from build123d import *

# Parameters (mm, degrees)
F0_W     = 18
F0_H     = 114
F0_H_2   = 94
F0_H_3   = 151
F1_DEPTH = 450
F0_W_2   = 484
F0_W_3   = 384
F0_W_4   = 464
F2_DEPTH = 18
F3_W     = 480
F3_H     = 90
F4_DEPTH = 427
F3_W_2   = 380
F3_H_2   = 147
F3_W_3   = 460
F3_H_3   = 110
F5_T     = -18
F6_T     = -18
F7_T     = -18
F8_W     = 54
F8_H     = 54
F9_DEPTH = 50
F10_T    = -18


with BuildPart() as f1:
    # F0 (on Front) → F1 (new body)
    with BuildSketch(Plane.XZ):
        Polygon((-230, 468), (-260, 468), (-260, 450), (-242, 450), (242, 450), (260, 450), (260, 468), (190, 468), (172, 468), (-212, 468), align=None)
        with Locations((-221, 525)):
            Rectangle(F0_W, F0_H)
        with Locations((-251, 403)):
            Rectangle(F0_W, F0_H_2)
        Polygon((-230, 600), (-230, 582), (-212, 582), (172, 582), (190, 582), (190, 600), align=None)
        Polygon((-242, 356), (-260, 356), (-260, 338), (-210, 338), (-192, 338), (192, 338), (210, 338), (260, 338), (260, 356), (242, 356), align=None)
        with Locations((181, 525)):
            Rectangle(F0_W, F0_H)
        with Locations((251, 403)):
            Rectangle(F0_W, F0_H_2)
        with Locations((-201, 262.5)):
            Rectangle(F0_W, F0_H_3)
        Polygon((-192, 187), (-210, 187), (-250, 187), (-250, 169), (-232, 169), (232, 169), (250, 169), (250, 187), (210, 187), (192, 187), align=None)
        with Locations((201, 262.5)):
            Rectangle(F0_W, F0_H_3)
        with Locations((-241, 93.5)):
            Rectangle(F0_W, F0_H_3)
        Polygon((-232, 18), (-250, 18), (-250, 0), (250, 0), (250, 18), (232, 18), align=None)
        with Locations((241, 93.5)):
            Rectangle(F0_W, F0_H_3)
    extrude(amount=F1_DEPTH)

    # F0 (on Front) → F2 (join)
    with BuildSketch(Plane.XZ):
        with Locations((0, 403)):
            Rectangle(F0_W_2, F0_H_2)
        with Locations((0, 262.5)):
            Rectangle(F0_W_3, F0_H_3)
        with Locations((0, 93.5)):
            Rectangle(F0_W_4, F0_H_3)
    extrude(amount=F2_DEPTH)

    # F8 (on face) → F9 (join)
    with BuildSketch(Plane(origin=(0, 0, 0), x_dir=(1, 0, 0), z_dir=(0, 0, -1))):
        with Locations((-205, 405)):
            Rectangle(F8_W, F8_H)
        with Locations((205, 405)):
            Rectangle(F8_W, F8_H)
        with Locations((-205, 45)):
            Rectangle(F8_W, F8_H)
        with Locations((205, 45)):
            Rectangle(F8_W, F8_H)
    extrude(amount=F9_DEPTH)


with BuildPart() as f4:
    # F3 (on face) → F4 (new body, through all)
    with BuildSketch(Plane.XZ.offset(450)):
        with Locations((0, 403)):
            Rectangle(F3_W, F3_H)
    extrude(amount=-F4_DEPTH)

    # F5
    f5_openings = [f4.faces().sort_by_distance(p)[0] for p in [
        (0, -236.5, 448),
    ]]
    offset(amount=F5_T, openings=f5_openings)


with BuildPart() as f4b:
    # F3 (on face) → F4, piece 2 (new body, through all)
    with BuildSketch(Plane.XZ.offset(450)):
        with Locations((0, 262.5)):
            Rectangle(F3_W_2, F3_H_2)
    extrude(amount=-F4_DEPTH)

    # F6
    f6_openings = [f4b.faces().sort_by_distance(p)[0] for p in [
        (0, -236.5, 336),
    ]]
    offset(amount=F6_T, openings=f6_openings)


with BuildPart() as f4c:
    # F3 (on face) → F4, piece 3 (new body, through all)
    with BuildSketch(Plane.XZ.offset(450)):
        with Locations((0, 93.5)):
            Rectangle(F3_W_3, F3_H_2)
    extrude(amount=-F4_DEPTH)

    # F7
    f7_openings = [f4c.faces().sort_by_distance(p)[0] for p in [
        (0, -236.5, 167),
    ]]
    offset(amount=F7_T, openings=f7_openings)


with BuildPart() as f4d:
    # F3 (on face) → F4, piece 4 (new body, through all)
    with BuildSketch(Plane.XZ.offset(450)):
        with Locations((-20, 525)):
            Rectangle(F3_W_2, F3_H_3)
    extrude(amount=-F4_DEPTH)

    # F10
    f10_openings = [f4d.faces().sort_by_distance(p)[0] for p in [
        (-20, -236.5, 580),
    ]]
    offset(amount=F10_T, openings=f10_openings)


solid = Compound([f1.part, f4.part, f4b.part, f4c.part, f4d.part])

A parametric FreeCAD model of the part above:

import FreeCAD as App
import Part
import Sketcher
Q = App.Units.Quantity


def faces_at(feature, points):
    """Names of the faces that lie closest to the given points."""
    faces = feature.Shape.Faces
    near = lambda p: min(range(len(faces)), key=lambda i: faces[i].distToShape(Part.Vertex(*p))[0])
    return sorted({f"Face{near(p) + 1}" for p in points})


def add_polygon(sketch, points):
    """Adds a closed chain of lines whose ends are joined by coincident constraints."""
    first, n = sketch.GeometryCount, len(points)
    for a, b in zip(points, points[1:] + points[:1]):
        sketch.addGeometry(Part.LineSegment(App.Vector(*a, 0), App.Vector(*b, 0)), False)
    for i in range(n):
        sketch.addConstraint(Sketcher.Constraint("Coincident", first + i, 2, first + (i + 1) % n, 1))

doc = App.newDocument("Part")
body = doc.addObject("PartDesign::Body", "Body")

# Sketch on XZ plane
sketch1 = body.newObject("Sketcher::SketchObject", "Sketch")
sketch1.AttachmentSupport = (doc.getObject("XZ_Plane"), [""])
sketch1.MapMode = "FlatFace"
add_polygon(sketch1, [(-260, 468), (-260, 338), (-210, 338), (-210, 187), (-250, 187), (-250, 0), (250, 0), (250, 187), (210, 187), (210, 338), (260, 338), (260, 468), (190, 468), (190, 600), (-230, 600), (-230, 468)])  # lines 0-15
add_polygon(sketch1, [(232, 18), (-232, 18), (-232, 169), (232, 169)])  # lines 16-19
add_polygon(sketch1, [(192, 187), (-192, 187), (-192, 338), (192, 338)])  # lines 20-23
add_polygon(sketch1, [(242, 356), (-242, 356), (-242, 450), (242, 450)])  # lines 24-27
add_polygon(sketch1, [(172, 468), (-212, 468), (-212, 582), (172, 582)])  # lines 28-31
sketch1.addConstraint(Sketcher.Constraint("Vertical", 0))
sketch1.addConstraint(Sketcher.Constraint("Horizontal", 1))
sketch1.addConstraint(Sketcher.Constraint("Vertical", 2))
sketch1.addConstraint(Sketcher.Constraint("Horizontal", 3))
sketch1.addConstraint(Sketcher.Constraint("Vertical", 4))
sketch1.addConstraint(Sketcher.Constraint("Horizontal", 5))
sketch1.addConstraint(Sketcher.Constraint("Vertical", 6))
sketch1.addConstraint(Sketcher.Constraint("Horizontal", 7))
sketch1.addConstraint(Sketcher.Constraint("Vertical", 8))
sketch1.addConstraint(Sketcher.Constraint("Horizontal", 9))
sketch1.addConstraint(Sketcher.Constraint("Vertical", 10))
sketch1.addConstraint(Sketcher.Constraint("Horizontal", 11))
sketch1.addConstraint(Sketcher.Constraint("Vertical", 12))
sketch1.addConstraint(Sketcher.Constraint("Horizontal", 13))
sketch1.addConstraint(Sketcher.Constraint("Vertical", 14))
sketch1.addConstraint(Sketcher.Constraint("Horizontal", 15))
sketch1.addConstraint(Sketcher.Constraint("Horizontal", 16))
sketch1.addConstraint(Sketcher.Constraint("Vertical", 17))
sketch1.addConstraint(Sketcher.Constraint("Horizontal", 18))
sketch1.addConstraint(Sketcher.Constraint("Vertical", 19))
sketch1.addConstraint(Sketcher.Constraint("Horizontal", 20))
sketch1.addConstraint(Sketcher.Constraint("Vertical", 21))
sketch1.addConstraint(Sketcher.Constraint("Horizontal", 22))
sketch1.addConstraint(Sketcher.Constraint("Vertical", 23))
sketch1.addConstraint(Sketcher.Constraint("Horizontal", 24))
sketch1.addConstraint(Sketcher.Constraint("Vertical", 25))
sketch1.addConstraint(Sketcher.Constraint("Horizontal", 26))
sketch1.addConstraint(Sketcher.Constraint("Vertical", 27))
sketch1.addConstraint(Sketcher.Constraint("Horizontal", 28))
sketch1.addConstraint(Sketcher.Constraint("Vertical", 29))
sketch1.addConstraint(Sketcher.Constraint("Horizontal", 30))
sketch1.addConstraint(Sketcher.Constraint("Vertical", 31))
sketch1.addConstraint(Sketcher.Constraint("Symmetric", 4, 2, 5, 2, -1, 1))
sketch1.addConstraint(Sketcher.Constraint("Symmetric", 2, 2, 7, 2, -2))
sketch1.addConstraint(Sketcher.Constraint("Symmetric", 0, 2, 9, 2, -2))
sketch1.addConstraint(Sketcher.Constraint("Horizontal", 11, 2, 14, 2))
sketch1.addConstraint(Sketcher.Constraint("Horizontal", 7, 2, 20, 2))
sketch1.addConstraint(Sketcher.Constraint("Horizontal", 9, 2, 21, 2))
sketch1.addConstraint(Sketcher.Constraint("Horizontal", 15, 2, 28, 2))
sketch1.addConstraint(Sketcher.Constraint("Equal", 22, 28))
sketch1.addConstraint(Sketcher.Constraint("Equal", 8, 17))
sketch1.addConstraint(Sketcher.Constraint("DistanceX", 1, 1, 1, 2, Q("50 mm")))
sketch1.addConstraint(Sketcher.Constraint("DistanceX", 3, 2, 3, 1, Q("40 mm")))
sketch1.addConstraint(Sketcher.Constraint("DistanceX", 5, 1, 5, 2, Q("500 mm")))
sketch1.addConstraint(Sketcher.Constraint("DistanceX", 11, 2, 11, 1, Q("70 mm")))
sketch1.addConstraint(Sketcher.Constraint("DistanceX", 13, 2, 13, 1, Q("420 mm")))
sketch1.addConstraint(Sketcher.Constraint("DistanceX", 16, 2, 16, 1, Q("464 mm")))
sketch1.addConstraint(Sketcher.Constraint("DistanceX", 20, 2, 20, 1, Q("384 mm")))
sketch1.addConstraint(Sketcher.Constraint("DistanceX", 24, 2, 24, 1, Q("484 mm")))
sketch1.addConstraint(Sketcher.Constraint("DistanceY", 0, 2, 0, 1, Q("130 mm")))
sketch1.addConstraint(Sketcher.Constraint("DistanceY", 2, 2, 2, 1, Q("151 mm")))
sketch1.addConstraint(Sketcher.Constraint("DistanceY", 4, 2, 4, 1, Q("187 mm")))
sketch1.addConstraint(Sketcher.Constraint("DistanceY", 12, 1, 12, 2, Q("132 mm")))
sketch1.addConstraint(Sketcher.Constraint("DistanceY", 25, 1, 25, 2, Q("94 mm")))
sketch1.addConstraint(Sketcher.Constraint("DistanceY", 29, 1, 29, 2, Q("114 mm")))
sketch1.addConstraint(Sketcher.Constraint("DistanceX", 16, 2, -1, 1, Q("232 mm")))
sketch1.addConstraint(Sketcher.Constraint("DistanceY", -1, 1, 16, 2, Q("18 mm")))
sketch1.addConstraint(Sketcher.Constraint("DistanceX", 20, 2, -1, 1, Q("192 mm")))
sketch1.addConstraint(Sketcher.Constraint("DistanceX", 24, 2, -1, 1, Q("242 mm")))
sketch1.addConstraint(Sketcher.Constraint("DistanceY", -1, 1, 24, 2, Q("356 mm")))
sketch1.addConstraint(Sketcher.Constraint("DistanceX", 28, 2, -1, 1, Q("212 mm")))
pad1 = body.newObject("PartDesign::Pad", "Pad")
pad1.Profile = sketch1
pad1.Length = 450

# Sketch on XZ plane
sketch2 = body.newObject("Sketcher::SketchObject", "Sketch001")
sketch2.AttachmentSupport = (doc.getObject("XZ_Plane"), [""])
sketch2.MapMode = "FlatFace"
add_polygon(sketch2, [(-242, 450), (-242, 356), (242, 356), (242, 450)])  # lines 0-3
add_polygon(sketch2, [(-192, 338), (-192, 187), (192, 187), (192, 338)])  # lines 4-7
add_polygon(sketch2, [(-232, 169), (-232, 18), (232, 18), (232, 169)])  # lines 8-11
sketch2.addConstraint(Sketcher.Constraint("Vertical", 0))
sketch2.addConstraint(Sketcher.Constraint("Horizontal", 1))
sketch2.addConstraint(Sketcher.Constraint("Vertical", 2))
sketch2.addConstraint(Sketcher.Constraint("Horizontal", 3))
sketch2.addConstraint(Sketcher.Constraint("Vertical", 4))
sketch2.addConstraint(Sketcher.Constraint("Horizontal", 5))
sketch2.addConstraint(Sketcher.Constraint("Vertical", 6))
sketch2.addConstraint(Sketcher.Constraint("Horizontal", 7))
sketch2.addConstraint(Sketcher.Constraint("Vertical", 8))
sketch2.addConstraint(Sketcher.Constraint("Horizontal", 9))
sketch2.addConstraint(Sketcher.Constraint("Vertical", 10))
sketch2.addConstraint(Sketcher.Constraint("Horizontal", 11))
sketch2.addConstraint(Sketcher.Constraint("Equal", 6, 8))
sketch2.addConstraint(Sketcher.Constraint("DistanceX", 1, 1, 1, 2, Q("484 mm")))
sketch2.addConstraint(Sketcher.Constraint("DistanceX", 5, 1, 5, 2, Q("384 mm")))
sketch2.addConstraint(Sketcher.Constraint("DistanceX", 9, 1, 9, 2, Q("464 mm")))
sketch2.addConstraint(Sketcher.Constraint("DistanceY", 0, 2, 0, 1, Q("94 mm")))
sketch2.addConstraint(Sketcher.Constraint("DistanceY", 4, 2, 4, 1, Q("151 mm")))
sketch2.addConstraint(Sketcher.Constraint("DistanceX", 0, 2, -1, 1, Q("242 mm")))
sketch2.addConstraint(Sketcher.Constraint("DistanceY", -1, 1, 0, 2, Q("356 mm")))
sketch2.addConstraint(Sketcher.Constraint("DistanceX", 4, 2, -1, 1, Q("192 mm")))
sketch2.addConstraint(Sketcher.Constraint("DistanceY", -1, 1, 4, 2, Q("187 mm")))
sketch2.addConstraint(Sketcher.Constraint("DistanceX", 8, 2, -1, 1, Q("232 mm")))
sketch2.addConstraint(Sketcher.Constraint("DistanceY", -1, 1, 8, 2, Q("18 mm")))
pad2 = body.newObject("PartDesign::Pad", "Pad001")
pad2.Profile = sketch2
pad2.Length = 18

# Sketch on XY plane
sketch3 = body.newObject("Sketcher::SketchObject", "Sketch002")
sketch3.AttachmentSupport = (doc.getObject("XY_Plane"), [""])
sketch3.MapMode = "FlatFace"
add_polygon(sketch3, [(-232, -432), (-232, -378), (-178, -378), (-178, -432)])  # lines 0-3
add_polygon(sketch3, [(178, -432), (178, -378), (232, -378), (232, -432)])  # lines 4-7
add_polygon(sketch3, [(-232, -72), (-232, -18), (-178, -18), (-178, -72)])  # lines 8-11
add_polygon(sketch3, [(178, -72), (178, -18), (232, -18), (232, -72)])  # lines 12-15
sketch3.addConstraint(Sketcher.Constraint("Vertical", 0))
sketch3.addConstraint(Sketcher.Constraint("Horizontal", 1))
sketch3.addConstraint(Sketcher.Constraint("Vertical", 2))
sketch3.addConstraint(Sketcher.Constraint("Horizontal", 3))
sketch3.addConstraint(Sketcher.Constraint("Vertical", 4))
sketch3.addConstraint(Sketcher.Constraint("Horizontal", 5))
sketch3.addConstraint(Sketcher.Constraint("Vertical", 6))
sketch3.addConstraint(Sketcher.Constraint("Horizontal", 7))
sketch3.addConstraint(Sketcher.Constraint("Vertical", 8))
sketch3.addConstraint(Sketcher.Constraint("Horizontal", 9))
sketch3.addConstraint(Sketcher.Constraint("Vertical", 10))
sketch3.addConstraint(Sketcher.Constraint("Horizontal", 11))
sketch3.addConstraint(Sketcher.Constraint("Vertical", 12))
sketch3.addConstraint(Sketcher.Constraint("Horizontal", 13))
sketch3.addConstraint(Sketcher.Constraint("Vertical", 14))
sketch3.addConstraint(Sketcher.Constraint("Horizontal", 15))
sketch3.addConstraint(Sketcher.Constraint("Symmetric", 1, 2, 4, 2, -2))
sketch3.addConstraint(Sketcher.Constraint("Symmetric", 3, 2, 6, 2, -2))
sketch3.addConstraint(Sketcher.Constraint("Symmetric", 9, 2, 12, 2, -2))
sketch3.addConstraint(Sketcher.Constraint("Symmetric", 11, 2, 14, 2, -2))
sketch3.addConstraint(Sketcher.Constraint("Vertical", 3, 2, 8, 2))
sketch3.addConstraint(Sketcher.Constraint("Vertical", 2, 2, 9, 2))
sketch3.addConstraint(Sketcher.Constraint("Equal", 15, 0))
sketch3.addConstraint(Sketcher.Constraint("Equal", 6, 8))
sketch3.addConstraint(Sketcher.Constraint("DistanceX", 1, 1, 1, 2, Q("54 mm")))
sketch3.addConstraint(Sketcher.Constraint("DistanceX", 0, 2, -1, 1, Q("232 mm")))
sketch3.addConstraint(Sketcher.Constraint("DistanceY", 0, 2, -1, 1, Q("378 mm")))
sketch3.addConstraint(Sketcher.Constraint("DistanceY", 8, 2, -1, 1, Q("18 mm")))
pad3 = body.newObject("PartDesign::Pad", "Pad002")
pad3.Profile = sketch3
pad3.Length = 50
pad3.Reversed = True
body2 = doc.addObject("PartDesign::Body", "Body001")

# Sketch on XZ plane
sketch4 = body2.newObject("Sketcher::SketchObject", "Sketch003")
sketch4.AttachmentSupport = (doc.getObject("XZ_Plane001"), [""])
sketch4.MapMode = "FlatFace"
sketch4.AttachmentOffset = App.Placement(App.Vector(0, 0, 450), App.Rotation())
add_polygon(sketch4, [(-240, 448), (-240, 358), (240, 358), (240, 448)])  # lines 0-3
sketch4.addConstraint(Sketcher.Constraint("Vertical", 0))
sketch4.addConstraint(Sketcher.Constraint("Horizontal", 1))
sketch4.addConstraint(Sketcher.Constraint("Vertical", 2))
sketch4.addConstraint(Sketcher.Constraint("Horizontal", 3))
sketch4.addConstraint(Sketcher.Constraint("DistanceX", 1, 1, 1, 2, Q("480 mm")))
sketch4.addConstraint(Sketcher.Constraint("DistanceY", 0, 2, 0, 1, Q("90 mm")))
sketch4.addConstraint(Sketcher.Constraint("DistanceX", 0, 2, -1, 1, Q("240 mm")))
sketch4.addConstraint(Sketcher.Constraint("DistanceY", -1, 1, 0, 2, Q("358 mm")))
pad4 = body2.newObject("PartDesign::Pad", "Pad003")
pad4.Profile = sketch4
pad4.Length = 427
pad4.Reversed = True
doc.recompute()

thickness = body2.newObject("PartDesign::Thickness", "Thickness")
thickness.Base = (pad4, faces_at(pad4, [(0, -236.5, 448)]))
thickness.Value = 18
thickness.Reversed = True
thickness.Join = "Arc"
body3 = doc.addObject("PartDesign::Body", "Body002")

# Sketch on XZ plane
sketch5 = body3.newObject("Sketcher::SketchObject", "Sketch004")
sketch5.AttachmentSupport = (doc.getObject("XZ_Plane002"), [""])
sketch5.MapMode = "FlatFace"
sketch5.AttachmentOffset = App.Placement(App.Vector(0, 0, 450), App.Rotation())
add_polygon(sketch5, [(-190, 336), (-190, 189), (190, 189), (190, 336)])  # lines 0-3
sketch5.addConstraint(Sketcher.Constraint("Vertical", 0))
sketch5.addConstraint(Sketcher.Constraint("Horizontal", 1))
sketch5.addConstraint(Sketcher.Constraint("Vertical", 2))
sketch5.addConstraint(Sketcher.Constraint("Horizontal", 3))
sketch5.addConstraint(Sketcher.Constraint("DistanceX", 1, 1, 1, 2, Q("380 mm")))
sketch5.addConstraint(Sketcher.Constraint("DistanceY", 0, 2, 0, 1, Q("147 mm")))
sketch5.addConstraint(Sketcher.Constraint("DistanceX", 0, 2, -1, 1, Q("190 mm")))
sketch5.addConstraint(Sketcher.Constraint("DistanceY", -1, 1, 0, 2, Q("189 mm")))
pad5 = body3.newObject("PartDesign::Pad", "Pad004")
pad5.Profile = sketch5
pad5.Length = 427
pad5.Reversed = True
doc.recompute()

thickness2 = body3.newObject("PartDesign::Thickness", "Thickness001")
thickness2.Base = (pad5, faces_at(pad5, [(0, -236.5, 336)]))
thickness2.Value = 18
thickness2.Reversed = True
thickness2.Join = "Arc"
body4 = doc.addObject("PartDesign::Body", "Body003")

# Sketch on XZ plane
sketch6 = body4.newObject("Sketcher::SketchObject", "Sketch005")
sketch6.AttachmentSupport = (doc.getObject("XZ_Plane003"), [""])
sketch6.MapMode = "FlatFace"
sketch6.AttachmentOffset = App.Placement(App.Vector(0, 0, 450), App.Rotation())
add_polygon(sketch6, [(-230, 167), (-230, 20), (230, 20), (230, 167)])  # lines 0-3
sketch6.addConstraint(Sketcher.Constraint("Vertical", 0))
sketch6.addConstraint(Sketcher.Constraint("Horizontal", 1))
sketch6.addConstraint(Sketcher.Constraint("Vertical", 2))
sketch6.addConstraint(Sketcher.Constraint("Horizontal", 3))
sketch6.addConstraint(Sketcher.Constraint("DistanceX", 1, 1, 1, 2, Q("460 mm")))
sketch6.addConstraint(Sketcher.Constraint("DistanceY", 0, 2, 0, 1, Q("147 mm")))
sketch6.addConstraint(Sketcher.Constraint("DistanceX", 0, 2, -1, 1, Q("230 mm")))
sketch6.addConstraint(Sketcher.Constraint("DistanceY", -1, 1, 0, 2, Q("20 mm")))
pad6 = body4.newObject("PartDesign::Pad", "Pad005")
pad6.Profile = sketch6
pad6.Length = 427
pad6.Reversed = True
doc.recompute()

thickness3 = body4.newObject("PartDesign::Thickness", "Thickness002")
thickness3.Base = (pad6, faces_at(pad6, [(0, -236.5, 167)]))
thickness3.Value = 18
thickness3.Reversed = True
thickness3.Join = "Arc"
body5 = doc.addObject("PartDesign::Body", "Body004")

# Sketch on XZ plane
sketch7 = body5.newObject("Sketcher::SketchObject", "Sketch006")
sketch7.AttachmentSupport = (doc.getObject("XZ_Plane004"), [""])
sketch7.MapMode = "FlatFace"
sketch7.AttachmentOffset = App.Placement(App.Vector(0, 0, 450), App.Rotation())
add_polygon(sketch7, [(-210, 580), (-210, 470), (170, 470), (170, 580)])  # lines 0-3
sketch7.addConstraint(Sketcher.Constraint("Vertical", 0))
sketch7.addConstraint(Sketcher.Constraint("Horizontal", 1))
sketch7.addConstraint(Sketcher.Constraint("Vertical", 2))
sketch7.addConstraint(Sketcher.Constraint("Horizontal", 3))
sketch7.addConstraint(Sketcher.Constraint("DistanceX", 1, 1, 1, 2, Q("380 mm")))
sketch7.addConstraint(Sketcher.Constraint("DistanceY", 0, 2, 0, 1, Q("110 mm")))
sketch7.addConstraint(Sketcher.Constraint("DistanceX", 0, 2, -1, 1, Q("210 mm")))
sketch7.addConstraint(Sketcher.Constraint("DistanceY", -1, 1, 0, 2, Q("470 mm")))
pad7 = body5.newObject("PartDesign::Pad", "Pad006")
pad7.Profile = sketch7
pad7.Length = 427
pad7.Reversed = True
doc.recompute()

thickness4 = body5.newObject("PartDesign::Thickness", "Thickness003")
thickness4.Base = (pad7, faces_at(pad7, [(-20, -236.5, 580)]))
thickness4.Value = 18
thickness4.Reversed = True
thickness4.Join = "Arc"

doc.recompute()
